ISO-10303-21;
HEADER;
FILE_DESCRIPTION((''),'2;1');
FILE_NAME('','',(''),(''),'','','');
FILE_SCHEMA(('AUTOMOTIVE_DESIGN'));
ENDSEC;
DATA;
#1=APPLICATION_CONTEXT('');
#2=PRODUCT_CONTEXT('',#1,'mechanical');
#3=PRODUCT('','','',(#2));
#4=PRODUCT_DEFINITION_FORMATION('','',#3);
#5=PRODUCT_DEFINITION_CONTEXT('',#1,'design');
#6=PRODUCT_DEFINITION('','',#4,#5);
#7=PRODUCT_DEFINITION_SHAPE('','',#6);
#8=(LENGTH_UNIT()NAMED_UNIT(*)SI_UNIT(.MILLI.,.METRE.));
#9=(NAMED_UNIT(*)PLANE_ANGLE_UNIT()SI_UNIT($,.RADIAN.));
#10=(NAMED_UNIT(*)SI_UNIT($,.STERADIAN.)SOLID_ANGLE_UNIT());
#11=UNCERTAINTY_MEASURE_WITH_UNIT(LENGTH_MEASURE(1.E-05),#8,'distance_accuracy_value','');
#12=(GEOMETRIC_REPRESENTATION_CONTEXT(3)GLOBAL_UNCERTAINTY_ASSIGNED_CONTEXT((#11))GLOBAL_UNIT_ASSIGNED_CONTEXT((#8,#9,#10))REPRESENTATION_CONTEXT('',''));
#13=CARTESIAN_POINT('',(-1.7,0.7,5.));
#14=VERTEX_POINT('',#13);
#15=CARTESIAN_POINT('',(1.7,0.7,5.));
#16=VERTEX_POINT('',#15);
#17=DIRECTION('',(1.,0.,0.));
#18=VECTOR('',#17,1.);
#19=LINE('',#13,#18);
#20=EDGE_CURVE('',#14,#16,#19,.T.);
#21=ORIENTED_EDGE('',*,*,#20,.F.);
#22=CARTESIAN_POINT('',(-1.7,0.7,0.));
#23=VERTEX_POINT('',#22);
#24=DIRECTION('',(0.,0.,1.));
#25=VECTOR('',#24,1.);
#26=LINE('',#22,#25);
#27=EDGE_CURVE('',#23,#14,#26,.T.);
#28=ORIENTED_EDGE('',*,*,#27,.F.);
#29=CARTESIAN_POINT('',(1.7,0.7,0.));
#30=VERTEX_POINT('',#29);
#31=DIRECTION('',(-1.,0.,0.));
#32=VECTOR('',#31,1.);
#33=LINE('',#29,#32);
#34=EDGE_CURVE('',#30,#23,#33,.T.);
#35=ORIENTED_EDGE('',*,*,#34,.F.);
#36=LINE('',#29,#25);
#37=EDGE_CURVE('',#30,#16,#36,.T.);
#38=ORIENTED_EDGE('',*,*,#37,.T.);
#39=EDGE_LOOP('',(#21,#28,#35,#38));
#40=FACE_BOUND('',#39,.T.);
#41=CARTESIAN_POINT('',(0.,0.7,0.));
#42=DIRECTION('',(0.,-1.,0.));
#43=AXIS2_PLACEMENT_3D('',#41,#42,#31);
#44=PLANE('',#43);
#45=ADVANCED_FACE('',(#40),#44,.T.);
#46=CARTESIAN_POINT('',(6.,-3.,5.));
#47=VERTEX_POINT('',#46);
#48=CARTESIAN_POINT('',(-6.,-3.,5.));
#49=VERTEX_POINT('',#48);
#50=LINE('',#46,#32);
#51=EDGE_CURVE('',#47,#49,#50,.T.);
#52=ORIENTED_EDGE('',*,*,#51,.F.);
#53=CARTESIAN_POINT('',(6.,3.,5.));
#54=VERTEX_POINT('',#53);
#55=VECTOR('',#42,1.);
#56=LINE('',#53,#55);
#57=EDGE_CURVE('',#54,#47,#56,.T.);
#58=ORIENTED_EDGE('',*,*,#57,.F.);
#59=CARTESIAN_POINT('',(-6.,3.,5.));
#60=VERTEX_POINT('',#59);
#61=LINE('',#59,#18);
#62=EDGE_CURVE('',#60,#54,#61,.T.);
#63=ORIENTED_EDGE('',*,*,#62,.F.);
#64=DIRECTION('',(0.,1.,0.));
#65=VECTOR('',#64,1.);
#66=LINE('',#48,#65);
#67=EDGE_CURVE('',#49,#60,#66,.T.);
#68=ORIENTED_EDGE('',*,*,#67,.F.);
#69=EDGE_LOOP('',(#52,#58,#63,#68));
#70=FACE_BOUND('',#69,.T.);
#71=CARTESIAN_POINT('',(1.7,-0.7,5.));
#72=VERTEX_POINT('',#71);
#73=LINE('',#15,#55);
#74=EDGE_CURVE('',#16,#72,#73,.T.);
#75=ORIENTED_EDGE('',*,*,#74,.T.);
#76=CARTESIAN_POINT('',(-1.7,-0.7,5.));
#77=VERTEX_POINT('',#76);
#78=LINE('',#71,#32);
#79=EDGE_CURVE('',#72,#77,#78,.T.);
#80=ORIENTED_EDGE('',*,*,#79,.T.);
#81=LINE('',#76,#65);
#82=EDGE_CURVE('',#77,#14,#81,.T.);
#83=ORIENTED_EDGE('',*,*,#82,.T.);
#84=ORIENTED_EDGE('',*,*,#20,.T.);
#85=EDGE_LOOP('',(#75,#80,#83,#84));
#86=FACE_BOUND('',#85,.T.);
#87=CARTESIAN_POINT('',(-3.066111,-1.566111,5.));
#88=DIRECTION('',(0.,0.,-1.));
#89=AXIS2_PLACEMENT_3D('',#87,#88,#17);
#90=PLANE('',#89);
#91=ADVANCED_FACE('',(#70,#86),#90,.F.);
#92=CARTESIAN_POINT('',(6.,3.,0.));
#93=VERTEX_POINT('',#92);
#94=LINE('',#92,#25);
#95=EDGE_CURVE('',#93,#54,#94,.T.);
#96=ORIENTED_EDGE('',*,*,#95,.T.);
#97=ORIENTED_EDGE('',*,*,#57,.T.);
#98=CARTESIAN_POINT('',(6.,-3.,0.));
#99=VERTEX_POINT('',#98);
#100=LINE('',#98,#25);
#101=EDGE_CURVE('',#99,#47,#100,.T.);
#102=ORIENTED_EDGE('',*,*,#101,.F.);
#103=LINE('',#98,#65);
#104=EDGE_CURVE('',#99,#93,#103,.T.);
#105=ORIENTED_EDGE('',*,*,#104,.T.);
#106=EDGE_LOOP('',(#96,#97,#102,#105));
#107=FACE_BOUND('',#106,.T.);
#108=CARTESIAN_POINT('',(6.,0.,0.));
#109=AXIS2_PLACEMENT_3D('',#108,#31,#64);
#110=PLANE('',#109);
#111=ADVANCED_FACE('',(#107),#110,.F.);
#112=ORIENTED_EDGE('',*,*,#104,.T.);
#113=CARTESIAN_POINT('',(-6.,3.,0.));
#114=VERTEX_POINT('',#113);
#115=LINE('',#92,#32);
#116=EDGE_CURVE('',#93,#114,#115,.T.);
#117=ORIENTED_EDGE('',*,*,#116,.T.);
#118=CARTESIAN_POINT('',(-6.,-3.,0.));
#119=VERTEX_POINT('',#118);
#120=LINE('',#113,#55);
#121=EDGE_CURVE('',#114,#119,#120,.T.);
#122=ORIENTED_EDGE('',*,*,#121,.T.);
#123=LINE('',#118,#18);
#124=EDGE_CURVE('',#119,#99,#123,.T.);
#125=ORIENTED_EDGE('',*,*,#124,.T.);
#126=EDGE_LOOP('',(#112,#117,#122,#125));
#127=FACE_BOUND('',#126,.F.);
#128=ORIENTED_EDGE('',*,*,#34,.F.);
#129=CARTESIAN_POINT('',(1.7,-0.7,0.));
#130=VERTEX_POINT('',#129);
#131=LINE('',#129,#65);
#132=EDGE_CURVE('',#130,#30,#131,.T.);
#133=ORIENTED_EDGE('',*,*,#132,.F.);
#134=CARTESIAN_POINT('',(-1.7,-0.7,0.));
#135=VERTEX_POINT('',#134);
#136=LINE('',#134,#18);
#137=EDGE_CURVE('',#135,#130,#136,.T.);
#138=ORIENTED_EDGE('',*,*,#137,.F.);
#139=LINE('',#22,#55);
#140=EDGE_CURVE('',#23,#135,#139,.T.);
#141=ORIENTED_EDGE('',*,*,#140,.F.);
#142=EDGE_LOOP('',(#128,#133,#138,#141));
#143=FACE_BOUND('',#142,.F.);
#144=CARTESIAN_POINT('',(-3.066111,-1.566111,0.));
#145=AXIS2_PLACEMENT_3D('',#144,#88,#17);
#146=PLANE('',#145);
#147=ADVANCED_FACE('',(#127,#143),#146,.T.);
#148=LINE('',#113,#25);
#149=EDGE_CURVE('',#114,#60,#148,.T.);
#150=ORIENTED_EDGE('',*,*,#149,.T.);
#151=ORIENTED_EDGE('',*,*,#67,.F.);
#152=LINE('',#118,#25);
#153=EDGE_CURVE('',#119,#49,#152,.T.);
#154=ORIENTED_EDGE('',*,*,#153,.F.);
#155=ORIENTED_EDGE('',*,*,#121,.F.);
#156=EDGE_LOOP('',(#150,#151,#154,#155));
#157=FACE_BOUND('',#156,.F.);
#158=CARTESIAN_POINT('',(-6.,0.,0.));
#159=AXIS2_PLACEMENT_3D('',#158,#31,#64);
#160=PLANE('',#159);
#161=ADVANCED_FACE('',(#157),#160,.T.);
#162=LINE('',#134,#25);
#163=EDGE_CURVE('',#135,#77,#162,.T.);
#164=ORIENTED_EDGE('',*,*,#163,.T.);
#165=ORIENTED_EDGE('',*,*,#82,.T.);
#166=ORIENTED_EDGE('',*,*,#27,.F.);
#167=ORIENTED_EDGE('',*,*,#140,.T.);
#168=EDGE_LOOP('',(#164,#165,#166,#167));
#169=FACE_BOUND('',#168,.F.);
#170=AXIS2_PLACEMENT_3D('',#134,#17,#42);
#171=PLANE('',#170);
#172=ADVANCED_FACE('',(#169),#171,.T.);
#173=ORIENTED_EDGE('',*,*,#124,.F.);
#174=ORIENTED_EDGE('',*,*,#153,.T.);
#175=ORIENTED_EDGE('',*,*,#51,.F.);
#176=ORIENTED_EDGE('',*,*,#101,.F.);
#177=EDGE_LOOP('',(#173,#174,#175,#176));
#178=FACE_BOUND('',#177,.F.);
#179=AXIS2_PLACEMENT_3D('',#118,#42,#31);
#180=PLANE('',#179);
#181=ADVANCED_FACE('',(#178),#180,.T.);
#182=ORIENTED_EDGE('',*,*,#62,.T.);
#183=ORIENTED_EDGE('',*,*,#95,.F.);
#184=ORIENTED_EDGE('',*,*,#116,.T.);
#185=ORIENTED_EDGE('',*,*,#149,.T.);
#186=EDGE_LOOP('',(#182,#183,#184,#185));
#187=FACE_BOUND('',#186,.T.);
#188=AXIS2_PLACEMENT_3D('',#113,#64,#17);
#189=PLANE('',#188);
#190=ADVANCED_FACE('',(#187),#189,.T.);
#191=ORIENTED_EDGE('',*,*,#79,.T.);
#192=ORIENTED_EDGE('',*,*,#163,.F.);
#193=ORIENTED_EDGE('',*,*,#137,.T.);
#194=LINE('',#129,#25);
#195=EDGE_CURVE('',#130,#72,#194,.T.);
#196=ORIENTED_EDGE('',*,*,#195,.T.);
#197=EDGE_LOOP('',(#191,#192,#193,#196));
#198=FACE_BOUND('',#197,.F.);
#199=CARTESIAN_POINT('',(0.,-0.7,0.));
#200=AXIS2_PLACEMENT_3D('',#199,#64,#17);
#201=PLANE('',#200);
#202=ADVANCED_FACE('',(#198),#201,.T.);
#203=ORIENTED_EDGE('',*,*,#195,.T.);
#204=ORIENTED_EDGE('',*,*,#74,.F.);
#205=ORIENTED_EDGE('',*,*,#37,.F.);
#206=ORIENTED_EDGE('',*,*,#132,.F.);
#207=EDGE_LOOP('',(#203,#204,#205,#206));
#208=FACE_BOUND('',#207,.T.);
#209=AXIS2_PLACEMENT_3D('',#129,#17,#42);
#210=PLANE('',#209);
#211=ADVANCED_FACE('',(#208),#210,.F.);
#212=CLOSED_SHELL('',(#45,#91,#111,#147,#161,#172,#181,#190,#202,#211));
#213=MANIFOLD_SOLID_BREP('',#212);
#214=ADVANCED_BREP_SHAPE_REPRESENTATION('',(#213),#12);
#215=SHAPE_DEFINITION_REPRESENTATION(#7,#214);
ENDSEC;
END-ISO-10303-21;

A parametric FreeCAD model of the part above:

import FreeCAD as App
import Part
import Sketcher
from FreeCAD import Vector

doc = App.newDocument("Part")
body = doc.addObject("PartDesign::Body", "Body")

# Sketch on XY plane
sketch1 = body.newObject("Sketcher::SketchObject", "Sketch")
sketch1.AttachmentSupport = (doc.getObject("XY_Plane"), [""])
sketch1.MapMode = "FlatFace"
sketch1.addGeometry([
    Part.LineSegment(Vector(6, 0, 0), Vector(6, 3, 0)),  # 0
    Part.LineSegment(Vector(6, 3, 0), Vector(0, 3, 0)),  # 1
    Part.LineSegment(Vector(0, 3, 0), Vector(0, 0.7, 0)),  # 2
    Part.LineSegment(Vector(0, 0.7, 0), Vector(1.7, 0.7, 0)),  # 3
    Part.LineSegment(Vector(1.7, 0.7, 0), Vector(1.7, 0, 0)),  # 4
    Part.LineSegment(Vector(1.7, 0, 0), Vector(6, 0, 0)),  # 5
], False)
sketch1.addConstraint([
    Sketcher.Constraint("Coincident", 0, 2, 1, 1),
    Sketcher.Constraint("Coincident", 1, 2, 2, 1),
    Sketcher.Constraint("Coincident", 2, 2, 3, 1),
    Sketcher.Constraint("Coincident", 3, 2, 4, 1),
    Sketcher.Constraint("Coincident", 4, 2, 5, 1),
    Sketcher.Constraint("Coincident", 5, 2, 0, 1),
    Sketcher.Constraint("Vertical", 0),
    Sketcher.Constraint("Horizontal", 1),
    Sketcher.Constraint("Vertical", 2),
    Sketcher.Constraint("Horizontal", 3),
    Sketcher.Constraint("Vertical", 4),
    Sketcher.Constraint("Horizontal", 5),
    Sketcher.Constraint("PointOnObject", 1, 2, -2),
    Sketcher.Constraint("PointOnObject", 4, 2, -1),
    Sketcher.Constraint("DistanceX", 1, 2, 1, 1, 6.0),
    Sketcher.Constraint("DistanceY", 0, 1, 0, 2, 3.0),
    Sketcher.Constraint("DistanceX", 3, 1, 3, 2, 1.7),
    Sketcher.Constraint("DistanceY", 2, 2, 2, 1, 2.3),
])
pad1 = body.newObject("PartDesign::Pad", "Pad")
pad1.Profile = sketch1
pad1.Length = 5

# Sketch on XY plane
sketch2 = body.newObject("Sketcher::SketchObject", "Sketch001")
sketch2.AttachmentSupport = (doc.getObject("XY_Plane"), [""])
sketch2.MapMode = "FlatFace"
sketch2.addGeometry([
    Part.LineSegment(Vector(-6, 0, 0), Vector(-6, 3, 0)),  # 0
    Part.LineSegment(Vector(-6, 3, 0), Vector(0, 3, 0)),  # 1
    Part.LineSegment(Vector(0, 3, 0), Vector(0, 0.7, 0)),  # 2
    Part.LineSegment(Vector(0, 0.7, 0), Vector(-1.7, 0.7, 0)),  # 3
    Part.LineSegment(Vector(-1.7, 0.7, 0), Vector(-1.7, 0, 0)),  # 4
    Part.LineSegment(Vector(-1.7, 0, 0), Vector(-6, 0, 0)),  # 5
], False)
sketch2.addConstraint([
    Sketcher.Constraint("Coincident", 0, 2, 1, 1),
    Sketcher.Constraint("Coincident", 1, 2, 2, 1),
    Sketcher.Constraint("Coincident", 2, 2, 3, 1),
    Sketcher.Constraint("Coincident", 3, 2, 4, 1),
    Sketcher.Constraint("Coincident", 4, 2, 5, 1),
    Sketcher.Constraint("Coincident", 5, 2, 0, 1),
    Sketcher.Constraint("Vertical", 0),
    Sketcher.Constraint("Horizontal", 1),
    Sketcher.Constraint("Vertical", 2),
    Sketcher.Constraint("Horizontal", 3),
    Sketcher.Constraint("Vertical", 4),
    Sketcher.Constraint("Horizontal", 5),
    Sketcher.Constraint("PointOnObject", 1, 2, -2),
    Sketcher.Constraint("PointOnObject", 4, 2, -1),
    Sketcher.Constraint("DistanceX", 1, 1, 1, 2, 6.0),
    Sketcher.Constraint("DistanceY", 0, 1, 0, 2, 3.0),
    Sketcher.Constraint("DistanceX", 3, 2, 3, 1, 1.7),
    Sketcher.Constraint("DistanceY", 2, 2, 2, 1, 2.3),
])
pad2 = body.newObject("PartDesign::Pad", "Pad001")
pad2.Profile = sketch2
pad2.Length = 5
doc.recompute()

mirrored = body.newObject("PartDesign::Mirrored", "Mirrored")
mirrored.Originals = [pad1, pad2]
mirrored.MirrorPlane = (doc.getObject("XZ_Plane"), [""])
body.Tip = mirrored

doc.recompute()
